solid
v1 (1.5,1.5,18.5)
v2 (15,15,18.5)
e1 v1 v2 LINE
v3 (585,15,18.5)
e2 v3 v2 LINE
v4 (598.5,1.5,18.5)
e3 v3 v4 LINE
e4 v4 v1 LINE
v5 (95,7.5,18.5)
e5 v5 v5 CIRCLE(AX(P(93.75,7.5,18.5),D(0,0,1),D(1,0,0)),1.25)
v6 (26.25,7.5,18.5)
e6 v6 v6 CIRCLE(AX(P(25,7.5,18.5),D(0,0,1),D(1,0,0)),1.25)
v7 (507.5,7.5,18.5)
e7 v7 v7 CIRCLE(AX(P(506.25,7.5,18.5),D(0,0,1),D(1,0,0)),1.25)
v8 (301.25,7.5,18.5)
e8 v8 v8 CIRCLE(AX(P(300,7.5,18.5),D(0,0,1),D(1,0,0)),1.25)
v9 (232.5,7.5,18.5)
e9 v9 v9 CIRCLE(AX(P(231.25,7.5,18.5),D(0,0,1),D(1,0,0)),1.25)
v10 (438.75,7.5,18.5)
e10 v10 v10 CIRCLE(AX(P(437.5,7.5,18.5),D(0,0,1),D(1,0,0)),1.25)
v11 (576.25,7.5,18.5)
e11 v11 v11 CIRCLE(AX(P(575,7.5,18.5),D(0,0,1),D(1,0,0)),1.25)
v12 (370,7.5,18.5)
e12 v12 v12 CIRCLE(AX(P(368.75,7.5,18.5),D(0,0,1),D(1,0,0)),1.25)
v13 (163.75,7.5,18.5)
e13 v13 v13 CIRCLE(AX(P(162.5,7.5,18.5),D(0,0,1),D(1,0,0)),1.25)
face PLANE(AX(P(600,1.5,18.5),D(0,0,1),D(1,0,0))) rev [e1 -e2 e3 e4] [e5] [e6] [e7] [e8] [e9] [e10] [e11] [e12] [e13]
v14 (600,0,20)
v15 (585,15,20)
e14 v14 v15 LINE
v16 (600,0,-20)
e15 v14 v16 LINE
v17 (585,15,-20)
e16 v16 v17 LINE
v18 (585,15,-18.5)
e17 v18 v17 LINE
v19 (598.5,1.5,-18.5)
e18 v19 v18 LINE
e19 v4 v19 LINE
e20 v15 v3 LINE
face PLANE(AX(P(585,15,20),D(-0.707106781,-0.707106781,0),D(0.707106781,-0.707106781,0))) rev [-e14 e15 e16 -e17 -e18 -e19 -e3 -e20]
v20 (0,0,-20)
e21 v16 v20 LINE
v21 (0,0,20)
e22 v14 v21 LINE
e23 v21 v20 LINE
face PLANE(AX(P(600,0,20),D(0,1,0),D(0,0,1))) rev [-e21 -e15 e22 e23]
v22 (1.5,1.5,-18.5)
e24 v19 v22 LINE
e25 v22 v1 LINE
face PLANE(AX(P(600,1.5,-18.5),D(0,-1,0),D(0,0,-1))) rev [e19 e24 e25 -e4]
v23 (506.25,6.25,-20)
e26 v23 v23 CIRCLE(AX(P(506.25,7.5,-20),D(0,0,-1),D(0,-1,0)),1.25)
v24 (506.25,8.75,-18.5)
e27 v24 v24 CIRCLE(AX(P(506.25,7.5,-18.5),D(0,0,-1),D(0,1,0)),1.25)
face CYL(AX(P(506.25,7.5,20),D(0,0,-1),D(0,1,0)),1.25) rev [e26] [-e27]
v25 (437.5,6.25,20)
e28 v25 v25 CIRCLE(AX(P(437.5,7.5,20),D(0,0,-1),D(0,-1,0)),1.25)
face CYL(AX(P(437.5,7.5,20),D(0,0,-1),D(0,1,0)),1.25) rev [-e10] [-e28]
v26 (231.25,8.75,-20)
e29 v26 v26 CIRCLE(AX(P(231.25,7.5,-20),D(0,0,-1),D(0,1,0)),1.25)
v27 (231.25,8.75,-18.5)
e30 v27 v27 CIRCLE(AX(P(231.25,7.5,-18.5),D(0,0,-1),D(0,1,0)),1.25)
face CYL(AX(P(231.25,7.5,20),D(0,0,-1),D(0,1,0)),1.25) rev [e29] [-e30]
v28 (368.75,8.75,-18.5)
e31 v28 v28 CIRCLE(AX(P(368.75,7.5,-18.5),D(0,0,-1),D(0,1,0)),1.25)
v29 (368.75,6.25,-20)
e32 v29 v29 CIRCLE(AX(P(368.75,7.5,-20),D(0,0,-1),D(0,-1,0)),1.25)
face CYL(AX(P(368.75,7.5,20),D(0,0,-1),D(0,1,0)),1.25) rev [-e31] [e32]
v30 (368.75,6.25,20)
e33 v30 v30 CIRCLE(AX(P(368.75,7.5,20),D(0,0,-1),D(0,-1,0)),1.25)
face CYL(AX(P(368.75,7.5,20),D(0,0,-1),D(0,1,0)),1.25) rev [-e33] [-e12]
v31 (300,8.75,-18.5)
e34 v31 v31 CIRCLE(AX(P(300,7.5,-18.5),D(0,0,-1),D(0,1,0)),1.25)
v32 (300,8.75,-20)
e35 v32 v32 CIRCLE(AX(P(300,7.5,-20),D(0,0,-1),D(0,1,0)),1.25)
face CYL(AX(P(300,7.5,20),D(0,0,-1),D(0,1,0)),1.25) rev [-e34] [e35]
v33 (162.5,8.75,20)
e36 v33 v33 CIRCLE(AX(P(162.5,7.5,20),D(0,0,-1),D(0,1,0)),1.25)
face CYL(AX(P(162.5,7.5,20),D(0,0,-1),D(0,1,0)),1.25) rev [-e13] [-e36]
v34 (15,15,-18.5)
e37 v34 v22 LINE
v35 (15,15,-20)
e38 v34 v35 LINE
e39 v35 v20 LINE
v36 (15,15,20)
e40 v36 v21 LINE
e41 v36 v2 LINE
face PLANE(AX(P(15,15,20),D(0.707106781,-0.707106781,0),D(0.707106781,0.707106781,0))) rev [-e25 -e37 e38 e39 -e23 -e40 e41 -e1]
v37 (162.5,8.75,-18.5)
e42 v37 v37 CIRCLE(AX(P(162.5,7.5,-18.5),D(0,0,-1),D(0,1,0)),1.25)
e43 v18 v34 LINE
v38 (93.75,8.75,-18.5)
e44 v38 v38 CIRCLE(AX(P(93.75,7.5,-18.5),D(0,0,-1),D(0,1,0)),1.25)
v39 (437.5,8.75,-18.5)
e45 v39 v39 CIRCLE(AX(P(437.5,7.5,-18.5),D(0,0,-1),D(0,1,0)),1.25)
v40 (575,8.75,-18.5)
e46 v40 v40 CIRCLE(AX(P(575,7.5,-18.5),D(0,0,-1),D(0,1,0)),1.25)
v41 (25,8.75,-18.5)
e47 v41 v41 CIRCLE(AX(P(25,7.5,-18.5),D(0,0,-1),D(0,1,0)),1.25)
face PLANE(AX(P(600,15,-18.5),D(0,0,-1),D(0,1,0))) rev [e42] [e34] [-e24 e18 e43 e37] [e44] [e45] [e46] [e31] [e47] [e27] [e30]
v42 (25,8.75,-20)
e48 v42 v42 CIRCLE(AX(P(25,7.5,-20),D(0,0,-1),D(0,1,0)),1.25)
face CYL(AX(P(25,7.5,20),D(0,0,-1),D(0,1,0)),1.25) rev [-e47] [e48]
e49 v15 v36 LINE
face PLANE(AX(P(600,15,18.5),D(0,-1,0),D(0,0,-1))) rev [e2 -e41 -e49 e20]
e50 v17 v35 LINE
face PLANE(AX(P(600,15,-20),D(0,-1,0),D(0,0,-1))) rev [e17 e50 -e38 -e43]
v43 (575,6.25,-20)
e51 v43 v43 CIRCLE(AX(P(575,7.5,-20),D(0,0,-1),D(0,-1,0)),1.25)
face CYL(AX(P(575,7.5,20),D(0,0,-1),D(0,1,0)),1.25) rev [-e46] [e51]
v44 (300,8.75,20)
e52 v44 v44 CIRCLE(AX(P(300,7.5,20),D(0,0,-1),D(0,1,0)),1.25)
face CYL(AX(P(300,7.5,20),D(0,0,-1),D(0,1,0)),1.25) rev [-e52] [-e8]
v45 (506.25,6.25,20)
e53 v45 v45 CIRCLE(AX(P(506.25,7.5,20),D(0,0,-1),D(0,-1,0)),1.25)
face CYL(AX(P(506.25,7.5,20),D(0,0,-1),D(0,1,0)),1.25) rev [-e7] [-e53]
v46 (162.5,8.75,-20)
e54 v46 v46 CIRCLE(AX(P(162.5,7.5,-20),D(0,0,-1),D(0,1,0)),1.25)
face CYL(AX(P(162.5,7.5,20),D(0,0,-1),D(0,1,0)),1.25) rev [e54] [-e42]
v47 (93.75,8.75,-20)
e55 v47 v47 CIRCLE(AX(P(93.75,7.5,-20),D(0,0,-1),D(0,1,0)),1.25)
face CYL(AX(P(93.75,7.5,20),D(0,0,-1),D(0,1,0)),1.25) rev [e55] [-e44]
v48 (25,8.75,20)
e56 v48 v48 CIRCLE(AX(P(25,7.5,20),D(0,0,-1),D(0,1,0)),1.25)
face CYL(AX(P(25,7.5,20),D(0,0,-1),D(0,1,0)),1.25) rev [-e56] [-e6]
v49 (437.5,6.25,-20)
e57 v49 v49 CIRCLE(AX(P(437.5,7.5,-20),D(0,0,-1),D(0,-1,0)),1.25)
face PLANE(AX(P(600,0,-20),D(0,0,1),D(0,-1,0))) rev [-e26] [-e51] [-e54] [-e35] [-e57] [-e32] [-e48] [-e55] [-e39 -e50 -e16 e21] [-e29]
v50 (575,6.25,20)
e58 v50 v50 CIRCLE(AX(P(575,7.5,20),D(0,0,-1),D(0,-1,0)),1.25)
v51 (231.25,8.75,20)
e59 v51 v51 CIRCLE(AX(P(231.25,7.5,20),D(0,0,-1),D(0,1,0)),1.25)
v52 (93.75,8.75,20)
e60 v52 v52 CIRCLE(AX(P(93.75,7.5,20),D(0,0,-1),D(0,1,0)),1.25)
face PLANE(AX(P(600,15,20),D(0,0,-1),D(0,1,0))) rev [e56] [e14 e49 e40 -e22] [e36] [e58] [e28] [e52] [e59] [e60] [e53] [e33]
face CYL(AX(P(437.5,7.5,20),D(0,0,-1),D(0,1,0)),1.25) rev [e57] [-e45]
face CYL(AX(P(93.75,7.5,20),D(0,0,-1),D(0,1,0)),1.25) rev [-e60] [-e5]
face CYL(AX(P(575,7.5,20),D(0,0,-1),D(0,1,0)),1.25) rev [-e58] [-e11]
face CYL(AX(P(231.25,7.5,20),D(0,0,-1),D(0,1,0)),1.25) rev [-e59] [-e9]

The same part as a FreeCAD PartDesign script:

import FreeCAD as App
import Part
import Sketcher

V = App.Vector

doc = App.newDocument("Part")
body = doc.addObject("PartDesign::Body", "Body")

sketch1 = doc.addObject("Sketcher::SketchObject", "Sketch")
body.addObject(sketch1)
sketch1.AttachmentSupport = (doc.YZ_Plane, [""])
sketch1.MapMode = "FlatFace"
sketch1.addGeometry([
    Part.LineSegment(V(0, 20, 0), V(0, -20, 0)),
    Part.LineSegment(V(0, -20, 0), V(15, -20, 0)),
    Part.LineSegment(V(15, -20, 0), V(15, -18.5, 0)),
    Part.LineSegment(V(15, -18.5, 0), V(1.5, -18.5, 0)),
    Part.LineSegment(V(1.5, -18.5, 0), V(1.5, 18.5, 0)),
    Part.LineSegment(V(1.5, 18.5, 0), V(15, 18.5, 0)),
    Part.LineSegment(V(15, 18.5, 0), V(15, 20, 0)),
    Part.LineSegment(V(15, 20, 0), V(0, 20, 0)),
], False)
sketch1.addConstraint([
    Sketcher.Constraint("Coincident", 0, 2, 1, 1),
    Sketcher.Constraint("Coincident", 1, 2, 2, 1),
    Sketcher.Constraint("Coincident", 2, 2, 3, 1),
    Sketcher.Constraint("Coincident", 3, 2, 4, 1),
    Sketcher.Constraint("Coincident", 4, 2, 5, 1),
    Sketcher.Constraint("Coincident", 5, 2, 6, 1),
    Sketcher.Constraint("Coincident", 6, 2, 7, 1),
    Sketcher.Constraint("Coincident", 7, 2, 0, 1),
    Sketcher.Constraint("Vertical", 0),
    Sketcher.Constraint("Horizontal", 1),
    Sketcher.Constraint("Vertical", 2),
    Sketcher.Constraint("Horizontal", 3),
    Sketcher.Constraint("Vertical", 4),
    Sketcher.Constraint("Horizontal", 5),
    Sketcher.Constraint("Vertical", 6),
    Sketcher.Constraint("Horizontal", 7),
    Sketcher.Constraint("Symmetric", 0, 2, 7, 2, -1, 1),
    Sketcher.Constraint("Symmetric", 2, 2, 5, 2, -1),
    Sketcher.Constraint("DistanceX", 1, 1, 1, 2, 15.0),
    Sketcher.Constraint("DistanceY", 0, 2, 0, 1, 40.0),
    Sketcher.Constraint("DistanceY", 4, 1, 4, 2, 37.0),
    Sketcher.Constraint("DistanceX", 3, 2, 3, 1, 13.5),
])
pad1 = doc.addObject("PartDesign::Pad", "Pad")
body.addObject(pad1)
pad1.Profile = sketch1
pad1.Length = 600

sketch2 = doc.addObject("Sketcher::SketchObject", "Sketch001")
body.addObject(sketch2)
sketch2.AttachmentSupport = (doc.XY_Plane, [""])
sketch2.MapMode = "FlatFace"
sketch2.AttachmentOffset = App.Placement(V(0, 0, -20), App.Rotation())
sketch2.addGeometry([
    Part.Circle(V(25, 7.5, 0), V(0, 0, 1), 1.2),
    Part.Circle(V(93.8, 7.5, 0), V(0, 0, 1), 1.2),
    Part.Circle(V(162.5, 7.5, 0), V(0, 0, 1), 1.2),
    Part.Circle(V(231.2, 7.5, 0), V(0, 0, 1), 1.2),
    Part.Circle(V(368.8, 7.5, 0), V(0, 0, 1), 1.2),
    Part.Circle(V(437.5, 7.5, 0), V(0, 0, 1), 1.2),
    Part.Circle(V(506.2, 7.5, 0), V(0, 0, 1), 1.2),
    Part.Circle(V(575, 7.5, 0), V(0, 0, 1), 1.2),
    Part.Circle(V(300, 7.5, 0), V(0, 0, 1), 1.2),
    Part.LineSegment(V(585, 15, 0), V(600, 15, 0)),
    Part.LineSegment(V(600, 15, 0), V(600, 0, 0)),
    Part.LineSegment(V(600, 0, 0), V(585, 15, 0)),
    Part.LineSegment(V(0, 15, 0), V(15, 15, 0)),
    Part.LineSegment(V(15, 15, 0), V(0, 0, 0)),
    Part.LineSegment(V(0, 0, 0), V(0, 15, 0)),
], False)
sketch2.addConstraint([
    Sketcher.Constraint("Coincident", 9, 2, 10, 1),
    Sketcher.Constraint("Coincident", 10, 2, 11, 1),
    Sketcher.Constraint("Coincident", 11, 2, 9, 1),
    Sketcher.Constraint("Coincident", 12, 2, 13, 1),
    Sketcher.Constraint("Coincident", 13, 2, 14, 1),
    Sketcher.Constraint("Coincident", 14, 2, 12, 1),
    Sketcher.Constraint("Horizontal", 9),
    Sketcher.Constraint("Vertical", 10),
    Sketcher.Constraint("Horizontal", 12),
    Sketcher.Constraint("Vertical", 14),
    Sketcher.Constraint("Coincident", 13, 2, -1, 1),
    Sketcher.Constraint("Equal", 0, 1),
    Sketcher.Constraint("Equal", 1, 2),
    Sketcher.Constraint("Equal", 2, 3),
    Sketcher.Constraint("Equal", 3, 4),
    Sketcher.Constraint("Equal", 4, 5),
    Sketcher.Constraint("Equal", 5, 6),
    Sketcher.Constraint("Equal", 6, 7),
    Sketcher.Constraint("Equal", 7, 8),
    Sketcher.Constraint("PointOnObject", 10, 2, -1),
    Sketcher.Constraint("Perpendicular", 11, 13),
    Sketcher.Constraint("Horizontal", 0, 3, 1, 3),
    Sketcher.Constraint("Horizontal", 1, 3, 2, 3),
    Sketcher.Constraint("Horizontal", 2, 3, 3, 3),
    Sketcher.Constraint("Horizontal", 3, 3, 4, 3),
    Sketcher.Constraint("Horizontal", 4, 3, 5, 3),
    Sketcher.Constraint("Horizontal", 5, 3, 6, 3),
    Sketcher.Constraint("Horizontal", 6, 3, 7, 3),
    Sketcher.Constraint("Horizontal", 7, 3, 8, 3),
    Sketcher.Constraint("Horizontal", 11, 2, 12, 2),
    Sketcher.Constraint("Equal", 9, 12),
    Sketcher.Constraint("Diameter", 0, 2.5),
    Sketcher.Constraint("DistanceX", 9, 1, 9, 2, 15.0),
    Sketcher.Constraint("DistanceX", -1, 1, 0, 3, 25.0),
    Sketcher.Constraint("DistanceX", -1, 1, 7, 3, 575.0),
    Sketcher.Constraint("DistanceX", -1, 1, 8, 3, 300.0),
    Sketcher.Constraint("DistanceX", -1, 1, 9, 2, 600.0),
    Sketcher.Constraint("DistanceX", 1, 3, 4, 3, 275.0),
    Sketcher.Constraint("DistanceX", 2, 3, 5, 3, 275.0),
    Sketcher.Constraint("DistanceX", 3, 3, 6, 3, 275.0),
    Sketcher.Constraint("DistanceY", -1, 1, 0, 3, 7.5),
    Sketcher.Constraint("DistanceX", -1, 1, 2, 3, 162.5),
    Sketcher.Constraint("DistanceX", 1, 3, 3, 3, 137.5),
    Sketcher.Constraint("DistanceX", -1, 1, 1, 3, 93.75),
])
pocket1 = doc.addObject("PartDesign::Pocket", "Pocket")
body.addObject(pocket1)
pocket1.Profile = sketch2
pocket1.Type = "ThroughAll"
pocket1.Reversed = True

doc.recompute()
